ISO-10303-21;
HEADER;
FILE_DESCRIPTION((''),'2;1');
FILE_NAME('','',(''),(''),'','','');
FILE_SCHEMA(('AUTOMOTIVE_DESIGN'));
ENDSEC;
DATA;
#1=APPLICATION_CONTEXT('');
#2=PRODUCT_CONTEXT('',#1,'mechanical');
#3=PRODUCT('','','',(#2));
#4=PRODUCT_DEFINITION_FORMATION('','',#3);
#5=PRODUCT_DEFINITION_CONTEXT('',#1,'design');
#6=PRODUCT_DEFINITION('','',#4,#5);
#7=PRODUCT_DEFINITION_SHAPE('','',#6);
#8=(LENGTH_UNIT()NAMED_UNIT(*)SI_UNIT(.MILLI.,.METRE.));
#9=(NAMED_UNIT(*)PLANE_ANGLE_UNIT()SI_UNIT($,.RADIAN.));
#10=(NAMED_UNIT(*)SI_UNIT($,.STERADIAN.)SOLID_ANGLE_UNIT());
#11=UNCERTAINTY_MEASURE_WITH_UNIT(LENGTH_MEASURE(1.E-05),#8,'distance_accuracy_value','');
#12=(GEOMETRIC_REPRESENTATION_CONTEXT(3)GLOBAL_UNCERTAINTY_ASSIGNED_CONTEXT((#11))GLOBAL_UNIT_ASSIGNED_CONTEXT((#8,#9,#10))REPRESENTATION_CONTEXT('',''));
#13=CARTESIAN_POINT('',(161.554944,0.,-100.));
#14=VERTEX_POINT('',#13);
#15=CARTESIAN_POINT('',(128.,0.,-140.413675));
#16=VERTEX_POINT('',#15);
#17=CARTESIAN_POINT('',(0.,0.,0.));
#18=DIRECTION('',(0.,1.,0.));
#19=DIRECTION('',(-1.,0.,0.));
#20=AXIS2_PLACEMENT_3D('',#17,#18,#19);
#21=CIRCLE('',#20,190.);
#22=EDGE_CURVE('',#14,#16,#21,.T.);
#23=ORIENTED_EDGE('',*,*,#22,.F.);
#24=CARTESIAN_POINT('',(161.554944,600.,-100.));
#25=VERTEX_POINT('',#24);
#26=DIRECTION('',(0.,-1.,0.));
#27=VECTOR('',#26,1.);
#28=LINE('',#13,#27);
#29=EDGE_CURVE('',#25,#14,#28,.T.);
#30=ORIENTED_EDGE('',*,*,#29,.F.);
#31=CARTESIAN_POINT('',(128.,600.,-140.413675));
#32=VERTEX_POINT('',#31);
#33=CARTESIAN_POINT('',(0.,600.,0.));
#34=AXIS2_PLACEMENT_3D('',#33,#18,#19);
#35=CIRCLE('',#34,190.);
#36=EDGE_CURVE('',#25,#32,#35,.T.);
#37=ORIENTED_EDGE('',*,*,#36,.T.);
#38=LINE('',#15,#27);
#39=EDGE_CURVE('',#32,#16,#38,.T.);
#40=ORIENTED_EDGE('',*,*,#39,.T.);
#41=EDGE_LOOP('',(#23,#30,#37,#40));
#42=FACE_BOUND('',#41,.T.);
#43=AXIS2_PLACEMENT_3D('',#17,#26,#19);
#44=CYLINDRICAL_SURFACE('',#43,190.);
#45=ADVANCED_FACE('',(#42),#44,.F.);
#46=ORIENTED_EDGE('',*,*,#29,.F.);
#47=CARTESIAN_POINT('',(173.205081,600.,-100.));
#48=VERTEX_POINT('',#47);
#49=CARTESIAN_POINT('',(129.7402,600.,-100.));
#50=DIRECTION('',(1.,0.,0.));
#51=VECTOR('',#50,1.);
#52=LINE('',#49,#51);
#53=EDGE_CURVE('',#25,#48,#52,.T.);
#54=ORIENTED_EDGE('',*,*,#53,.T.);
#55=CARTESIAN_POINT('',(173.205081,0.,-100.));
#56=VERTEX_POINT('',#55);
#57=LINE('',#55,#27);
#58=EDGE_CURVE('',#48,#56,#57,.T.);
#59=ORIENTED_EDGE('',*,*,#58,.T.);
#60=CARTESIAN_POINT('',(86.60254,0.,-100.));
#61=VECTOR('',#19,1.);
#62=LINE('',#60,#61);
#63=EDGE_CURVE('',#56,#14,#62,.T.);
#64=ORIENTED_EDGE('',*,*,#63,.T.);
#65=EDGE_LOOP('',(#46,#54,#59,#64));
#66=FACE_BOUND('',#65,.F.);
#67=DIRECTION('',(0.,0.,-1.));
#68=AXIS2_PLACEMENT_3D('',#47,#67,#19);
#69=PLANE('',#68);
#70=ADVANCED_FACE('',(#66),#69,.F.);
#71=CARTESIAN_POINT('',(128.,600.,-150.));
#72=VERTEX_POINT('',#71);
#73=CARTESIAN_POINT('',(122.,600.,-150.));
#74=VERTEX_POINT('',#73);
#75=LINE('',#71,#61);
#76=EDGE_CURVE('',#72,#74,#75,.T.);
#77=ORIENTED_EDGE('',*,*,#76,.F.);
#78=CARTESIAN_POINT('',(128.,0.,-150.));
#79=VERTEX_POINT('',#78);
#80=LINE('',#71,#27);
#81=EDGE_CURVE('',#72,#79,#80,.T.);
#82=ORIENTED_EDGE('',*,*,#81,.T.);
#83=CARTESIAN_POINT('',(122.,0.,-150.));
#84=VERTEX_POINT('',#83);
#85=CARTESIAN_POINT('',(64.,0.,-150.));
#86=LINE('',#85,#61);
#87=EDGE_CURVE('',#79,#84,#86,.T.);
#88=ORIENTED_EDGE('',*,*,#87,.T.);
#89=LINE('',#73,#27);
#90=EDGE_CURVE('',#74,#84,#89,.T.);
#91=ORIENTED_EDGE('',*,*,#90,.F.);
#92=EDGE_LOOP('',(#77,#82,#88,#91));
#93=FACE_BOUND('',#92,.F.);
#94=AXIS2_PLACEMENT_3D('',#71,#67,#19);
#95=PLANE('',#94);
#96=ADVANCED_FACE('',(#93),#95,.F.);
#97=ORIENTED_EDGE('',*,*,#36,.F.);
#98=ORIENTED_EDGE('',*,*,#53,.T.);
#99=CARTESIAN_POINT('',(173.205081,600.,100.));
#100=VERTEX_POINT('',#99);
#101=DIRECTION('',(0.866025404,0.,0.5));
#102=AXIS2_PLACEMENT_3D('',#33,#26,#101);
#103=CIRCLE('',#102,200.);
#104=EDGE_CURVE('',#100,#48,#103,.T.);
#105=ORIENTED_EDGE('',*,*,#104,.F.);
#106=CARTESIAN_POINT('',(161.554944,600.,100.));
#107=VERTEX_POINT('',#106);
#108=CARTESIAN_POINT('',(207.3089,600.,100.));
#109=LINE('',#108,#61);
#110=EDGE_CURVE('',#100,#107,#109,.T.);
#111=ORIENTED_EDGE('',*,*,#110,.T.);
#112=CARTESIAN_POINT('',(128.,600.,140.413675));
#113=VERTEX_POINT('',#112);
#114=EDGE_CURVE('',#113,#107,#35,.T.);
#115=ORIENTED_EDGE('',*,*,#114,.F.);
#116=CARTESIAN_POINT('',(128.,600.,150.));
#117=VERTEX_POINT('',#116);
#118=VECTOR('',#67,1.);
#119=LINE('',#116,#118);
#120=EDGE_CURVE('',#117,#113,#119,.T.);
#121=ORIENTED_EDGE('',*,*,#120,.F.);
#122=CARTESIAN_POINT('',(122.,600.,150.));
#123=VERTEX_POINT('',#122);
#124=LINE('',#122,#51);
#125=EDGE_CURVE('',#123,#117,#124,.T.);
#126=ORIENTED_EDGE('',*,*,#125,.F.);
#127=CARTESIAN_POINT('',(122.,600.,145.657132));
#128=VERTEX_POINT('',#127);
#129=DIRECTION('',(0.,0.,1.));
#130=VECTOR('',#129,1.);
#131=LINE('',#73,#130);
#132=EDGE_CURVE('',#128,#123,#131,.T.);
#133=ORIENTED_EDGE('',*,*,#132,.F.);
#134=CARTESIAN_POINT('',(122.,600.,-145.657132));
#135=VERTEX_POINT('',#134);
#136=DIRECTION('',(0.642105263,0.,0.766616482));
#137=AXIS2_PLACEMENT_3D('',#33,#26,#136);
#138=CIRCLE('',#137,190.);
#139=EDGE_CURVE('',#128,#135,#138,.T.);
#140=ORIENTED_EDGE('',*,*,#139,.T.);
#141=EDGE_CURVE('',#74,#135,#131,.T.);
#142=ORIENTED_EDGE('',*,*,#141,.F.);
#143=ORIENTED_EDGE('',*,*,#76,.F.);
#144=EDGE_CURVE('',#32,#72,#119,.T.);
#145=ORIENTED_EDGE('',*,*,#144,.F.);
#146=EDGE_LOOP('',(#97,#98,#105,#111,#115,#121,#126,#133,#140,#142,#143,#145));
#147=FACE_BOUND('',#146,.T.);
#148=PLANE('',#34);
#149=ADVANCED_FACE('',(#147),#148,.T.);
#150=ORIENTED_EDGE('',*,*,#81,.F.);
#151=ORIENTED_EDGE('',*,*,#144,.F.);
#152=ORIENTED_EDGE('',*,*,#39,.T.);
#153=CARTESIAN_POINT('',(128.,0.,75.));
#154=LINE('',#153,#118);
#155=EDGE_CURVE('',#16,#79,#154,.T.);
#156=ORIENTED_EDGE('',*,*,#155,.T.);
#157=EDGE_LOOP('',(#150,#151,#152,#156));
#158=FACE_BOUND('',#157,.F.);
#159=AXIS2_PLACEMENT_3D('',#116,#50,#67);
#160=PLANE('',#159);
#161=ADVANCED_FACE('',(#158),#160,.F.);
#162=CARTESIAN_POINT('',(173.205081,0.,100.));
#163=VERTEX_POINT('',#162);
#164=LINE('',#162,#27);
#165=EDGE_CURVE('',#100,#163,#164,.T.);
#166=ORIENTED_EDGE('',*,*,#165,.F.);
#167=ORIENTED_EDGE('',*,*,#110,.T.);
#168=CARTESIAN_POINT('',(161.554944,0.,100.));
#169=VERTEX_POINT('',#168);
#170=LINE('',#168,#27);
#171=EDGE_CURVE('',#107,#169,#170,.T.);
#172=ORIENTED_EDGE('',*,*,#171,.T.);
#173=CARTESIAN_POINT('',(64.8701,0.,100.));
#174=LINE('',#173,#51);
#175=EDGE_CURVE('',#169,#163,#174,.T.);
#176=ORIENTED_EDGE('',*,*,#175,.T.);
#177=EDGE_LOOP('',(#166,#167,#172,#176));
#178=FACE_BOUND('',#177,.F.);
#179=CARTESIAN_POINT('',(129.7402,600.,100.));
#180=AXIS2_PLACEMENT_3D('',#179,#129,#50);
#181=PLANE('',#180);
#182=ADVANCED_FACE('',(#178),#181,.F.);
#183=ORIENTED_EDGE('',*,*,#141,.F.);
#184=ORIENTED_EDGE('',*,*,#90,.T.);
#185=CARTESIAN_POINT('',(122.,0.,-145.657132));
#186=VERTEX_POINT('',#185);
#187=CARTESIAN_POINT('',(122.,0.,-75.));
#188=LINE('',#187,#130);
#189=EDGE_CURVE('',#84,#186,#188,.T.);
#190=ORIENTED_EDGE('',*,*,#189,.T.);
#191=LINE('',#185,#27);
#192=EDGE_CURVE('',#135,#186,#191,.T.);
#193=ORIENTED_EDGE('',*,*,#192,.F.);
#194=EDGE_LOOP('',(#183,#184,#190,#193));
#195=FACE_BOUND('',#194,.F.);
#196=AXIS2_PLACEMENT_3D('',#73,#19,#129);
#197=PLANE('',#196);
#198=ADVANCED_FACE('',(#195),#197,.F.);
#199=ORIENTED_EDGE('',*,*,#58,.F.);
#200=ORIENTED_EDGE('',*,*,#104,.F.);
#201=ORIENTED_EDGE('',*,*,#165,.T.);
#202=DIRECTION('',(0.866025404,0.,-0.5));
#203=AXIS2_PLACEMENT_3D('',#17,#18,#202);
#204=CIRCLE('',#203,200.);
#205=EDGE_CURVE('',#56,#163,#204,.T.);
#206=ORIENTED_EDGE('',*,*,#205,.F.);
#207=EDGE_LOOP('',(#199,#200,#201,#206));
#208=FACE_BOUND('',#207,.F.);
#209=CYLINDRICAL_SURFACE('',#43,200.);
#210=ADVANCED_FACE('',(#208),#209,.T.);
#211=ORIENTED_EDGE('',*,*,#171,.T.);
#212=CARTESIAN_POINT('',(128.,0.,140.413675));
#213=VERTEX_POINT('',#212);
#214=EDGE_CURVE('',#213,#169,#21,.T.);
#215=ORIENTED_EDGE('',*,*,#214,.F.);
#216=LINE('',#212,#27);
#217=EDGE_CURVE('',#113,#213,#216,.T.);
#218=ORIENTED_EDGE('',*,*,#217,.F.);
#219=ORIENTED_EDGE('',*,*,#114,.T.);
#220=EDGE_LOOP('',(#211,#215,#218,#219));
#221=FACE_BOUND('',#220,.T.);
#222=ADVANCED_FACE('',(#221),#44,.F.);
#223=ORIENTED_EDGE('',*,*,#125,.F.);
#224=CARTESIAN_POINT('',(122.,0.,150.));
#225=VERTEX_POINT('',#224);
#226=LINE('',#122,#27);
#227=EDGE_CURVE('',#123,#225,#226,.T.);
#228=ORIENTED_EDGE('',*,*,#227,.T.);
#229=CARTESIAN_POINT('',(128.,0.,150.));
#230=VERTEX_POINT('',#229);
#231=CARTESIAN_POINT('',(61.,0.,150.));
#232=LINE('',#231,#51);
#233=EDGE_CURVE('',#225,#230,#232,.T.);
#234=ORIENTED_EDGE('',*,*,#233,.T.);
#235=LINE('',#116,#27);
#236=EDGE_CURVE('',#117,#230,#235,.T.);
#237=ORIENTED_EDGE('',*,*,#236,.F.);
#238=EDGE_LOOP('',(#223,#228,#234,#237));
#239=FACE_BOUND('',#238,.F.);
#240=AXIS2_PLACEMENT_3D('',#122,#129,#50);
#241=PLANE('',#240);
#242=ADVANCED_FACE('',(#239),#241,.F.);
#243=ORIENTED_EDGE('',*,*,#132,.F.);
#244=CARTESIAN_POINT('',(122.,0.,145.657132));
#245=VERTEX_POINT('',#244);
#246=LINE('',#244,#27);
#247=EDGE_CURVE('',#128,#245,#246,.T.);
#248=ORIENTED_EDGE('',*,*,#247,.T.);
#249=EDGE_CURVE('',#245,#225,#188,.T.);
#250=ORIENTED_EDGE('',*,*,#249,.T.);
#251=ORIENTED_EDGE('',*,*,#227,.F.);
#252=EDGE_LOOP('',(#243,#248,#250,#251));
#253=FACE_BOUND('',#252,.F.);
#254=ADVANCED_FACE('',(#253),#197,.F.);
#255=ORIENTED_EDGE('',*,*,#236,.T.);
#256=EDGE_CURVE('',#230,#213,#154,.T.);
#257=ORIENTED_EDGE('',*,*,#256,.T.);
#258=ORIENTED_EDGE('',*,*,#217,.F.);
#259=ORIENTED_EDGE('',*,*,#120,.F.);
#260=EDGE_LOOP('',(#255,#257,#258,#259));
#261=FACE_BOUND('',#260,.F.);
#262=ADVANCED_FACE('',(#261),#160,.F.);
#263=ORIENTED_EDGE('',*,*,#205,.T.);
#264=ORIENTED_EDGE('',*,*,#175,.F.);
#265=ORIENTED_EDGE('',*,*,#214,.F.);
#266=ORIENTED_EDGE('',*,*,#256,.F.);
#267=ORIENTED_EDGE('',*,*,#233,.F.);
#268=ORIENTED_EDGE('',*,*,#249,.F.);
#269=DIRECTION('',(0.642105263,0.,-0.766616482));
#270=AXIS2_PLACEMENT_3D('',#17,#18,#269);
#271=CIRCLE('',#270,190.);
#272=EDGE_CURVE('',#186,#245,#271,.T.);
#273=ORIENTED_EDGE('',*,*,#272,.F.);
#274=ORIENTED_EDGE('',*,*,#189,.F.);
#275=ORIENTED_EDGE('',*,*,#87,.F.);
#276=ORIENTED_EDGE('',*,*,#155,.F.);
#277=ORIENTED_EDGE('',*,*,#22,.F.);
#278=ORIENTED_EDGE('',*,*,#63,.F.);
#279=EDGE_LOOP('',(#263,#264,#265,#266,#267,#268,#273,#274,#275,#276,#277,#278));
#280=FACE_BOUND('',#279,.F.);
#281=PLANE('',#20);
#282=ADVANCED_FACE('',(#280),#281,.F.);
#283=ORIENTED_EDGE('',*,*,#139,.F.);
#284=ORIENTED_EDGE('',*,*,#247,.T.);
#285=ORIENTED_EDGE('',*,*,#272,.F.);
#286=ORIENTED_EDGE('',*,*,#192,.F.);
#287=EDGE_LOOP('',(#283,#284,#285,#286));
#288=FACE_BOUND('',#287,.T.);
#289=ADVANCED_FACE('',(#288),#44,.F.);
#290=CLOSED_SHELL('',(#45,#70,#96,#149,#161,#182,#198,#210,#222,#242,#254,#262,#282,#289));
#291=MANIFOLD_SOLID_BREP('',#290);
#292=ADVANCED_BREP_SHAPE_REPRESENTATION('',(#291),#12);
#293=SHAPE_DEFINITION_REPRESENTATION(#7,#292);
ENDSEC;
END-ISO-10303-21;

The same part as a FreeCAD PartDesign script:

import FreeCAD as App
import Part
import Sketcher
from FreeCAD import Vector

doc = App.newDocument("Part")
params = doc.addObject("Spreadsheet::Sheet", "Params")
for row, (alias, value) in enumerate([
    ("sketch1_diameter", "400 mm"),
    ("sketch1_diameter2", "380 mm"),
    ("pad1_length", "600 mm"),
    ("sketch2_width", "6 mm"),
    ("sketch2_height", "200 mm"),
    ("sketch2_height2", "300 mm"),
    ("pocket1_length", "706.25 mm"),
], start=1):
    params.set(f"A{row}", alias)
    params.set(f"B{row}", "=" + value)
    params.setAlias(f"B{row}", alias)

body = doc.addObject("PartDesign::Body", "Body")

# Sketch on XZ plane
sketch1 = doc.addObject("Sketcher::SketchObject", "Sketch")
body.addObject(sketch1)
sketch1.AttachmentSupport = (doc.XZ_Plane, [""])
sketch1.MapMode = "FlatFace"
sketch1.addGeometry(Part.Circle(Vector(0, 0, 0), Vector(0, 0, 1), 200), False)
sketch1.addGeometry(Part.Circle(Vector(0, 0, 0), Vector(0, 0, 1), 190), False)
sketch1.addConstraint(Sketcher.Constraint("Coincident", 0, 3, -1, 1))
sketch1.addConstraint(Sketcher.Constraint("Coincident", 1, 3, -1, 1))
sketch1.addConstraint(Sketcher.Constraint("Diameter", 0, 400.0))
sketch1.addConstraint(Sketcher.Constraint("Diameter", 1, 380.0))
sketch1.setExpression("Constraints[2]", "Params.sketch1_diameter")
sketch1.setExpression("Constraints[3]", "Params.sketch1_diameter2")
pad1 = doc.addObject("PartDesign::Pad", "Pad")
body.addObject(pad1)
pad1.Profile = sketch1
pad1.setExpression("Length", "Params.pad1_length")
pad1.Reversed = True

# Sketch on XZ plane
sketch2 = doc.addObject("Sketcher::SketchObject", "Sketch001")
body.addObject(sketch2)
sketch2.AttachmentSupport = (doc.XZ_Plane, [""])
sketch2.MapMode = "FlatFace"
sketch2.AttachmentOffset = App.Placement(Vector(0, 0, -600), App.Rotation())
sketch2.addGeometry(Part.LineSegment(Vector(130, -100, 0), Vector(130, 100, 0)), False)
sketch2.addGeometry(Part.LineSegment(Vector(130, 100, 0), Vector(207, 100, 0)), False)
sketch2.addGeometry(Part.LineSegment(Vector(207, 100, 0), Vector(207, -100, 0)), False)
sketch2.addGeometry(Part.LineSegment(Vector(207, -100, 0), Vector(130, -100, 0)), False)
sketch2.addGeometry(Part.LineSegment(Vector(122, -150, 0), Vector(122, 150, 0)), False)
sketch2.addGeometry(Part.LineSegment(Vector(122, 150, 0), Vector(128, 150, 0)), False)
sketch2.addGeometry(Part.LineSegment(Vector(128, 150, 0), Vector(128, -150, 0)), False)
sketch2.addGeometry(Part.LineSegment(Vector(128, -150, 0), Vector(122, -150, 0)), False)
sketch2.addConstraint(Sketcher.Constraint("Coincident", 0, 2, 1, 1))
sketch2.addConstraint(Sketcher.Constraint("Coincident", 1, 2, 2, 1))
sketch2.addConstraint(Sketcher.Constraint("Coincident", 2, 2, 3, 1))
sketch2.addConstraint(Sketcher.Constraint("Coincident", 3, 2, 0, 1))
sketch2.addConstraint(Sketcher.Constraint("Coincident", 4, 2, 5, 1))
sketch2.addConstraint(Sketcher.Constraint("Coincident", 5, 2, 6, 1))
sketch2.addConstraint(Sketcher.Constraint("Coincident", 6, 2, 7, 1))
sketch2.addConstraint(Sketcher.Constraint("Coincident", 7, 2, 4, 1))
sketch2.addConstraint(Sketcher.Constraint("Vertical", 0))
sketch2.addConstraint(Sketcher.Constraint("Horizontal", 1))
sketch2.addConstraint(Sketcher.Constraint("Vertical", 2))
sketch2.addConstraint(Sketcher.Constraint("Horizontal", 3))
sketch2.addConstraint(Sketcher.Constraint("Vertical", 4))
sketch2.addConstraint(Sketcher.Constraint("Horizontal", 5))
sketch2.addConstraint(Sketcher.Constraint("Vertical", 6))
sketch2.addConstraint(Sketcher.Constraint("Horizontal", 7))
sketch2.addConstraint(Sketcher.Constraint("DistanceX", 5, 1, 5, 2, 6.0))
sketch2.addConstraint(Sketcher.Constraint("DistanceY", 0, 1, 0, 2, 200.0))
sketch2.addConstraint(Sketcher.Constraint("DistanceY", 4, 1, 4, 2, 300.0))
sketch2.addConstraint(Sketcher.Constraint("DistanceY", -1, 1, 0, 2, 100.0))
sketch2.addConstraint(Sketcher.Constraint("DistanceX", -1, 1, 4, 2, 122.0))
sketch2.addConstraint(Sketcher.Constraint("DistanceY", -1, 1, 4, 2, 150.0))
sketch2.addConstraint(Sketcher.Constraint("DistanceX", 1, 1, 1, 2, 77.5687))
sketch2.addConstraint(Sketcher.Constraint("DistanceX", -1, 1, 1, 2, 207.309))
sketch2.setExpression("Constraints[16]", "Params.sketch2_width")
sketch2.setExpression("Constraints[17]", "Params.sketch2_height")
sketch2.setExpression("Constraints[18]", "Params.sketch2_height2")
pocket1 = doc.addObject("PartDesign::Pocket", "Pocket")
body.addObject(pocket1)
pocket1.Profile = sketch2
pocket1.setExpression("Length", "Params.pocket1_length")
pocket1.Reversed = True

doc.recompute()
